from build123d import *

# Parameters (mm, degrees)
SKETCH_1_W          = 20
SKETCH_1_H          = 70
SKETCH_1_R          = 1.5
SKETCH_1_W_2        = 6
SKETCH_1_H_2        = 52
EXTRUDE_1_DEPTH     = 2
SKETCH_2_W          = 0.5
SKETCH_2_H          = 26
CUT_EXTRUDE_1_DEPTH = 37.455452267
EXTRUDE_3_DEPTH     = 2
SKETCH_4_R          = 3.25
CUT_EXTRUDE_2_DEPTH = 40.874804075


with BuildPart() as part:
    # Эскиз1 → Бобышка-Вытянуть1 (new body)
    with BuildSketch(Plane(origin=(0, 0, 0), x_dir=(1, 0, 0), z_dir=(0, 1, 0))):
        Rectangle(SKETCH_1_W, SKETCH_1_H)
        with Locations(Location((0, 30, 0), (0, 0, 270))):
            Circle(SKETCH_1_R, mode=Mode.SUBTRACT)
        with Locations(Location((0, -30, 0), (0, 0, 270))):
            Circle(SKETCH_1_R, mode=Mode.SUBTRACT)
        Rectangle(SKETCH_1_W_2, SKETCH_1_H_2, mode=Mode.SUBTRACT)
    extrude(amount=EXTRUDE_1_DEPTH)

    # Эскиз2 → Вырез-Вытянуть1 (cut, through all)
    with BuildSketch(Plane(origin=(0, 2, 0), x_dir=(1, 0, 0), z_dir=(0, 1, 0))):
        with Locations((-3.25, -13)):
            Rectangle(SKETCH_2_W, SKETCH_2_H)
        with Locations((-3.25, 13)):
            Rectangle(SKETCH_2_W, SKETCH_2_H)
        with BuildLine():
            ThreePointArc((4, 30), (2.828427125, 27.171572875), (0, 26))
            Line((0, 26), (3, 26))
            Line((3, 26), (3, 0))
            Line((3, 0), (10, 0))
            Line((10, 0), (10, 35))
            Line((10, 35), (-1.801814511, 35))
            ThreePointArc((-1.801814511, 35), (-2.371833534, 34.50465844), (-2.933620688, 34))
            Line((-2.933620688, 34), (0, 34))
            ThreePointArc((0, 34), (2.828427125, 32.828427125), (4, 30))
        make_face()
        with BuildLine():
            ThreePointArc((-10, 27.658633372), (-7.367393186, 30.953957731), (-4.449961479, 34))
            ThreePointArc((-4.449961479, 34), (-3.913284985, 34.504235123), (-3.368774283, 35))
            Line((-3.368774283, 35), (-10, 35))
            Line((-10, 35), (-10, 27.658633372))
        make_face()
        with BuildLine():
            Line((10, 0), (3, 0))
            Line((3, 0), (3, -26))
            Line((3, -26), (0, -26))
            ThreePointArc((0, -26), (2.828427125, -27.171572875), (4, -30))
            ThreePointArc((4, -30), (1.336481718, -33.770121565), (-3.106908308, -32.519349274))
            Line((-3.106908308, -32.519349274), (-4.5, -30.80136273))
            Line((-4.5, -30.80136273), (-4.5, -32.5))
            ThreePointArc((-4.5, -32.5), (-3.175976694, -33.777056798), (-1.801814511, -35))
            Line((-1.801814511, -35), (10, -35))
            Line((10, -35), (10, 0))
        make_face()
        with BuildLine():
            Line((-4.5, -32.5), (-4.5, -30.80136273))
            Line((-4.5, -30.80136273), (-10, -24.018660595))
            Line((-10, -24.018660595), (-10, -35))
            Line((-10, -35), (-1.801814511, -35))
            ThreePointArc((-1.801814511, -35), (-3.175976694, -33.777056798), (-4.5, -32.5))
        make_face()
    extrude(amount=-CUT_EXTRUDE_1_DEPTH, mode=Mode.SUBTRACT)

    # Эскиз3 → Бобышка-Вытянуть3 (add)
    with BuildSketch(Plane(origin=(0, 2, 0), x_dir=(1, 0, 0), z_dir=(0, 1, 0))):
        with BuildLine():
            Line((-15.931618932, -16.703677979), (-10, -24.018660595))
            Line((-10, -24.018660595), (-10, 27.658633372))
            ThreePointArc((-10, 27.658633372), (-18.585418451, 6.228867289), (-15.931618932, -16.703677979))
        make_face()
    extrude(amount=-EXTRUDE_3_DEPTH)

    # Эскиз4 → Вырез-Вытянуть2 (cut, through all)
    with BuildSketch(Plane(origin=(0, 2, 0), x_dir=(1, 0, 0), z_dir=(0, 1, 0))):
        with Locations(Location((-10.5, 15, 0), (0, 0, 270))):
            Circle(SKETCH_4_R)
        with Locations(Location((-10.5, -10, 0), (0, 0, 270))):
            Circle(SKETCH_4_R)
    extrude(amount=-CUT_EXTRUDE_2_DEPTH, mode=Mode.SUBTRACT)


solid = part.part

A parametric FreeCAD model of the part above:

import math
import FreeCAD as App
import Part
import Sketcher
from FreeCAD import Vector
Q = App.Units.Quantity

doc = App.newDocument("Part")
body = doc.addObject("PartDesign::Body", "Body")

sketch1 = body.newObject("Sketcher::SketchObject", "Sketch")
sketch1.AttachmentSupport = (doc.getObject("XZ_Plane"), [""])
sketch1.MapMode = "FlatFace"
sketch1.addGeometry(Part.LineSegment(Vector(-10, -35, 0), Vector(-10, 35, 0)), False)
sketch1.addGeometry(Part.LineSegment(Vector(-10, 35, 0), Vector(10, 35, 0)), False)
sketch1.addGeometry(Part.LineSegment(Vector(10, 35, 0), Vector(10, -35, 0)), False)
sketch1.addGeometry(Part.LineSegment(Vector(10, -35, 0), Vector(-10, -35, 0)), False)
sketch1.addGeometry(Part.Circle(Vector(0, 30, 0), Vector(0, 0, 1), 1.5), False)
sketch1.addGeometry(Part.LineSegment(Vector(3, 26, 0), Vector(-3, 26, 0)), False)
sketch1.addGeometry(Part.LineSegment(Vector(-3, 26, 0), Vector(-3, -26, 0)), False)
sketch1.addGeometry(Part.LineSegment(Vector(-3, -26, 0), Vector(3, -26, 0)), False)
sketch1.addGeometry(Part.LineSegment(Vector(3, -26, 0), Vector(3, 26, 0)), False)
sketch1.addGeometry(Part.Circle(Vector(0, -30, 0), Vector(0, 0, 1), 1.5), False)
sketch1.addConstraint(Sketcher.Constraint("Coincident", 0, 2, 1, 1))
sketch1.addConstraint(Sketcher.Constraint("Coincident", 1, 2, 2, 1))
sketch1.addConstraint(Sketcher.Constraint("Coincident", 2, 2, 3, 1))
sketch1.addConstraint(Sketcher.Constraint("Coincident", 3, 2, 0, 1))
sketch1.addConstraint(Sketcher.Constraint("Coincident", 5, 2, 6, 1))
sketch1.addConstraint(Sketcher.Constraint("Coincident", 6, 2, 7, 1))
sketch1.addConstraint(Sketcher.Constraint("Coincident", 7, 2, 8, 1))
sketch1.addConstraint(Sketcher.Constraint("Coincident", 8, 2, 5, 1))
sketch1.addConstraint(Sketcher.Constraint("Vertical", 0))
sketch1.addConstraint(Sketcher.Constraint("Horizontal", 1))
sketch1.addConstraint(Sketcher.Constraint("Vertical", 2))
sketch1.addConstraint(Sketcher.Constraint("Horizontal", 3))
sketch1.addConstraint(Sketcher.Constraint("Horizontal", 5))
sketch1.addConstraint(Sketcher.Constraint("Vertical", 6))
sketch1.addConstraint(Sketcher.Constraint("Horizontal", 7))
sketch1.addConstraint(Sketcher.Constraint("Vertical", 8))
sketch1.addConstraint(Sketcher.Constraint("Equal", 4, 9))
sketch1.addConstraint(Sketcher.Constraint("Symmetric", 4, 3, 9, 3, -1, 1))
sketch1.addConstraint(Sketcher.Constraint("Symmetric", 0, 2, 2, 2, -1, 1))
sketch1.addConstraint(Sketcher.Constraint("Symmetric", 5, 2, 7, 2, -1, 1))
sketch1.addConstraint(Sketcher.Constraint("PointOnObject", 4, 3, -2))
sketch1.addConstraint(Sketcher.Constraint("Diameter", 4, Q("3 mm")))
sketch1.addConstraint(Sketcher.Constraint("DistanceX", 1, 1, 1, 2, Q("20 mm")))
sketch1.addConstraint(Sketcher.Constraint("DistanceX", 5, 2, 5, 1, Q("6 mm")))
sketch1.addConstraint(Sketcher.Constraint("DistanceY", 0, 1, 0, 2, Q("70 mm")))
sketch1.addConstraint(Sketcher.Constraint("DistanceY", 6, 2, 6, 1, Q("52 mm")))
sketch1.addConstraint(Sketcher.Constraint("DistanceY", -1, 1, 4, 3, Q("30 mm")))
pad1 = body.newObject("PartDesign::Pad", "Pad")
pad1.Profile = sketch1
pad1.Length = 2
pad1.Reversed = True

sketch2 = body.newObject("Sketcher::SketchObject", "Sketch001")
sketch2.AttachmentSupport = (doc.getObject("XZ_Plane"), [""])
sketch2.MapMode = "FlatFace"
sketch2.AttachmentOffset = App.Placement(Vector(0, 0, -2), App.Rotation())
sketch2.addGeometry(Part.LineSegment(Vector(-3.5, 26, 0), Vector(-3, 26, 0)), False)
sketch2.addGeometry(Part.LineSegment(Vector(-3, 26, 0), Vector(-3, -26, 0)), False)
sketch2.addGeometry(Part.LineSegment(Vector(-3, -26, 0), Vector(-3.5, -26, 0)), False)
sketch2.addGeometry(Part.LineSegment(Vector(-3.5, -26, 0), Vector(-3.5, 26, 0)), False)
sketch2.addGeometry(Part.ArcOfCircle(Part.Circle(Vector(0, -30, 0), Vector(0, 0, 1), 4), math.radians(0), math.radians(90)), False)
sketch2.addGeometry(Part.LineSegment(Vector(0, -26, 0), Vector(3, -26, 0)), False)
sketch2.addGeometry(Part.LineSegment(Vector(3, -26, 0), Vector(3, 26, 0)), False)
sketch2.addGeometry(Part.LineSegment(Vector(3, 26, 0), Vector(0, 26, 0)), False)
sketch2.addGeometry(Part.ArcOfCircle(Part.Circle(Vector(0, 30, 0), Vector(0, 0, 1), 4), math.radians(-90), math.radians(0)), False)
sketch2.addGeometry(Part.ArcOfCircle(Part.Circle(Vector(0, 30, 0), Vector(0, 0, 1), 4), math.radians(0), math.radians(140.961879)), False)
sketch2.addGeometry(Part.LineSegment(Vector(-3.106908, 32.519349, 0), Vector(-4.5, 30.801363, 0)), False)
sketch2.addGeometry(Part.LineSegment(Vector(-4.5, 30.801363, 0), Vector(-10, 24.018661, 0)), False)
sketch2.addGeometry(Part.LineSegment(Vector(-10, 24.018661, 0), Vector(-10, 35, 0)), False)
sketch2.addGeometry(Part.LineSegment(Vector(-10, 35, 0), Vector(10, 35, 0)), False)
sketch2.addGeometry(Part.LineSegment(Vector(10, 35, 0), Vector(10, -35, 0)), False)
sketch2.addGeometry(Part.LineSegment(Vector(10, -35, 0), Vector(-1.801815, -35, 0)), False)
sketch2.addGeometry(Part.ArcOfCircle(Part.Circle(Vector(27.999999, -0.129631, 0), Vector(0, 0, 1), 45.870368), math.radians(-132.405278), math.radians(-130.518716)), False)
sketch2.addGeometry(Part.LineSegment(Vector(-2.933621, -34, 0), Vector(0, -34, 0)), False)
sketch2.addGeometry(Part.ArcOfCircle(Part.Circle(Vector(0, -30, 0), Vector(0, 0, 1), 4), math.radians(-90), math.radians(0)), False)
sketch2.addGeometry(Part.ArcOfCircle(Part.Circle(Vector(28, 0, 0), Vector(0, 0, 1), 47), math.radians(-143.950671), math.radians(-133.663738)), False)
sketch2.addGeometry(Part.ArcOfCircle(Part.Circle(Vector(28.000003, 0.000003, 0), Vector(0, 0, 1), 47.000004), math.radians(-133.663738), math.radians(-131.868306)), False)
sketch2.addGeometry(Part.LineSegment(Vector(-3.368774, -35, 0), Vector(-10, -35, 0)), False)
sketch2.addGeometry(Part.LineSegment(Vector(-10, -35, 0), Vector(-10, -27.658633, 0)), False)
sketch2.addConstraint(Sketcher.Constraint("Coincident", 0, 2, 1, 1))
sketch2.addConstraint(Sketcher.Constraint("Coincident", 1, 2, 2, 1))
sketch2.addConstraint(Sketcher.Constraint("Coincident", 2, 2, 3, 1))
sketch2.addConstraint(Sketcher.Constraint("Coincident", 3, 2, 0, 1))
sketch2.addConstraint(Sketcher.Constraint("Tangent", 4, 2, 5, 1))
sketch2.addConstraint(Sketcher.Constraint("Coincident", 5, 2, 6, 1))
sketch2.addConstraint(Sketcher.Constraint("Coincident", 6, 2, 7, 1))
sketch2.addConstraint(Sketcher.Constraint("Tangent", 7, 2, 8, 1))
sketch2.addConstraint(Sketcher.Constraint("Tangent", 8, 2, 9, 1))
sketch2.addConstraint(Sketcher.Constraint("Tangent", 9, 2, 10, 1))
sketch2.addConstraint(Sketcher.Constraint("Coincident", 10, 2, 11, 1))
sketch2.addConstraint(Sketcher.Constraint("Coincident", 11, 2, 12, 1))
sketch2.addConstraint(Sketcher.Constraint("Coincident", 12, 2, 13, 1))
sketch2.addConstraint(Sketcher.Constraint("Coincident", 13, 2, 14, 1))
sketch2.addConstraint(Sketcher.Constraint("Coincident", 14, 2, 15, 1))
sketch2.addConstraint(Sketcher.Constraint("Coincident", 15, 2, 16, 2))
sketch2.addConstraint(Sketcher.Constraint("Coincident", 16, 1, 17, 1))
sketch2.addConstraint(Sketcher.Constraint("Tangent", 17, 2, 18, 1))
sketch2.addConstraint(Sketcher.Constraint("Tangent", 18, 2, 4, 1))
sketch2.addConstraint(Sketcher.Constraint("Tangent", 19, 2, 20, 1))
sketch2.addConstraint(Sketcher.Constraint("Coincident", 20, 2, 21, 1))
sketch2.addConstraint(Sketcher.Constraint("Coincident", 21, 2, 22, 1))
sketch2.addConstraint(Sketcher.Constraint("Coincident", 22, 2, 19, 1))
sketch2.addConstraint(Sketcher.Constraint("Horizontal", 0))
sketch2.addConstraint(Sketcher.Constraint("Vertical", 1))
sketch2.addConstraint(Sketcher.Constraint("Horizontal", 2))
sketch2.addConstraint(Sketcher.Constraint("Vertical", 3))
sketch2.addConstraint(Sketcher.Constraint("Horizontal", 5))
sketch2.addConstraint(Sketcher.Constraint("Vertical", 6))
sketch2.addConstraint(Sketcher.Constraint("Horizontal", 7))
sketch2.addConstraint(Sketcher.Constraint("Vertical", 12))
sketch2.addConstraint(Sketcher.Constraint("Horizontal", 13))
sketch2.addConstraint(Sketcher.Constraint("Vertical", 14))
sketch2.addConstraint(Sketcher.Constraint("Horizontal", 15))
sketch2.addConstraint(Sketcher.Constraint("Horizontal", 17))
sketch2.addConstraint(Sketcher.Constraint("Horizontal", 21))
sketch2.addConstraint(Sketcher.Constraint("Vertical", 22))
sketch2.addConstraint(Sketcher.Constraint("Equal", 4, 8))
sketch2.addConstraint(Sketcher.Constraint("Equal", 8, 9))
sketch2.addConstraint(Sketcher.Constraint("Equal", 9, 18))
sketch2.addConstraint(Sketcher.Constraint("Symmetric", 4, 3, 8, 3, -1, 1))
sketch2.addConstraint(Sketcher.Constraint("Symmetric", 0, 2, 5, 2, -1, 1))
sketch2.addConstraint(Sketcher.Constraint("Symmetric", 12, 2, 14, 2, -1, 1))
sketch2.addConstraint(Sketcher.Constraint("Symmetric", 13, 2, 21, 2, -1, 1))
sketch2.addConstraint(Sketcher.Constraint("Symmetric", 8, 2, 18, 2, -1))
sketch2.addConstraint(Sketcher.Constraint("PointOnObject", 19, 3, -1))
sketch2.addConstraint(Sketcher.Constraint("Parallel", 10, 11))
sketch2.addConstraint(Sketcher.Constraint("Horizontal", 2, 2, 4, 2))
sketch2.addConstraint(Sketcher.Constraint("Horizontal", 9, 3, 8, 2))
sketch2.addConstraint(Sketcher.Constraint("Horizontal", 17, 2, 19, 2))
sketch2.addConstraint(Sketcher.Constraint("Vertical", 16, 3, 19, 3))
sketch2.addConstraint(Sketcher.Constraint("Radius", 4, Q("4 mm")))
sketch2.addConstraint(Sketcher.Constraint("Radius", 19, Q("47 mm")))
sketch2.addConstraint(Sketcher.Constraint("DistanceX", 5, 1, 5, 2, Q("3 mm")))
sketch2.addConstraint(Sketcher.Constraint("DistanceX", 13, 1, 13, 2, Q("20 mm")))
sketch2.addConstraint(Sketcher.Constraint("DistanceY", 1, 2, 1, 1, Q("52 mm")))
sketch2.addConstraint(Sketcher.Constraint("DistanceY", 14, 2, 14, 1, Q("70 mm")))
sketch2.addConstraint(Sketcher.Constraint("DistanceX", 0, 1, 0, 2, Q("0.5 mm")))
sketch2.addConstraint(Sketcher.Constraint("DistanceX", -1, 1, 16, 3, Q("27.999999 mm")))
sketch2.addConstraint(Sketcher.Constraint("DistanceX", 10, 2, 3, 2, Q("1 mm")))
sketch2.addConstraint(Sketcher.Constraint("Radius", 16, Q("45.870368 mm")))
sketch2.addConstraint(Sketcher.Constraint("Radius", 20, Q("47.000004 mm")))
sketch2.addConstraint(Sketcher.Constraint("DistanceX", 17, 1, 17, 2, Q("2.933621 mm")))
sketch2.addConstraint(Sketcher.Constraint("DistanceY", 12, 1, 12, 2, Q("10.981339 mm")))
pocket1 = body.newObject("PartDesign::Pocket", "Pocket")
pocket1.Profile = sketch2
pocket1.Type = "ThroughAll"
pocket1.Reversed = True

sketch3 = body.newObject("Sketcher::SketchObject", "Sketch002")
sketch3.AttachmentSupport = (doc.getObject("XZ_Plane"), [""])
sketch3.MapMode = "FlatFace"
sketch3.AttachmentOffset = App.Placement(Vector(0, 0, -2), App.Rotation())
sketch3.addGeometry(Part.LineSegment(Vector(-15.931619, 16.703678, 0), Vector(-10, 24.018661, 0)), False)
sketch3.addGeometry(Part.LineSegment(Vector(-10, 24.018661, 0), Vector(-10, -27.658633, 0)), False)
sketch3.addGeometry(Part.ArcOfCircle(Part.Circle(Vector(28, 0, 0), Vector(0, 0, 1), 47), math.radians(159.182198), math.radians(216.049329)), False)
sketch3.addConstraint(Sketcher.Constraint("Coincident", 0, 2, 1, 1))
sketch3.addConstraint(Sketcher.Constraint("Coincident", 1, 2, 2, 2))
sketch3.addConstraint(Sketcher.Constraint("Coincident", 2, 1, 0, 1))
sketch3.addConstraint(Sketcher.Constraint("Vertical", 1))
sketch3.addConstraint(Sketcher.Constraint("PointOnObject", 2, 3, -1))
sketch3.addConstraint(Sketcher.Constraint("Radius", 2, Q("47 mm")))
sketch3.addConstraint(Sketcher.Constraint("DistanceX", -1, 1, 2, 3, Q("28 mm")))
sketch3.addConstraint(Sketcher.Constraint("DistanceX", 0, 2, -1, 1, Q("10 mm")))
sketch3.addConstraint(Sketcher.Constraint("Distance", 0, Q("9.4177 mm")))
sketch3.addConstraint(Sketcher.Constraint("DistanceY", 1, 2, 1, 1, Q("51.677294 mm")))
pad2 = body.newObject("PartDesign::Pad", "Pad001")
pad2.Profile = sketch3
pad2.Length = 2

sketch4 = body.newObject("Sketcher::SketchObject", "Sketch003")
sketch4.AttachmentSupport = (doc.getObject("XZ_Plane"), [""])
sketch4.MapMode = "FlatFace"
sketch4.AttachmentOffset = App.Placement(Vector(0, 0, -2), App.Rotation())
sketch4.addGeometry(Part.Circle(Vector(-10.5, -15, 0), Vector(0, 0, 1), 3.25), False)
sketch4.addGeometry(Part.Circle(Vector(-10.5, 10, 0), Vector(0, 0, 1), 3.25), False)
sketch4.addConstraint(Sketcher.Constraint("Equal", 0, 1))
sketch4.addConstraint(Sketcher.Constraint("Vertical", 0, 3, 1, 3))
sketch4.addConstraint(Sketcher.Constraint("Diameter", 0, Q("6.5 mm")))
sketch4.addConstraint(Sketcher.Constraint("DistanceY", 0, 3, -1, 1, Q("15 mm")))
sketch4.addConstraint(Sketcher.Constraint("DistanceY", -1, 1, 1, 3, Q("10 mm")))
sketch4.addConstraint(Sketcher.Constraint("DistanceX", 0, 3, -1, 1, Q("10.5 mm")))
pocket2 = body.newObject("PartDesign::Pocket", "Pocket001")
pocket2.Profile = sketch4
pocket2.Type = "ThroughAll"
pocket2.Reversed = True

doc.recompute()
